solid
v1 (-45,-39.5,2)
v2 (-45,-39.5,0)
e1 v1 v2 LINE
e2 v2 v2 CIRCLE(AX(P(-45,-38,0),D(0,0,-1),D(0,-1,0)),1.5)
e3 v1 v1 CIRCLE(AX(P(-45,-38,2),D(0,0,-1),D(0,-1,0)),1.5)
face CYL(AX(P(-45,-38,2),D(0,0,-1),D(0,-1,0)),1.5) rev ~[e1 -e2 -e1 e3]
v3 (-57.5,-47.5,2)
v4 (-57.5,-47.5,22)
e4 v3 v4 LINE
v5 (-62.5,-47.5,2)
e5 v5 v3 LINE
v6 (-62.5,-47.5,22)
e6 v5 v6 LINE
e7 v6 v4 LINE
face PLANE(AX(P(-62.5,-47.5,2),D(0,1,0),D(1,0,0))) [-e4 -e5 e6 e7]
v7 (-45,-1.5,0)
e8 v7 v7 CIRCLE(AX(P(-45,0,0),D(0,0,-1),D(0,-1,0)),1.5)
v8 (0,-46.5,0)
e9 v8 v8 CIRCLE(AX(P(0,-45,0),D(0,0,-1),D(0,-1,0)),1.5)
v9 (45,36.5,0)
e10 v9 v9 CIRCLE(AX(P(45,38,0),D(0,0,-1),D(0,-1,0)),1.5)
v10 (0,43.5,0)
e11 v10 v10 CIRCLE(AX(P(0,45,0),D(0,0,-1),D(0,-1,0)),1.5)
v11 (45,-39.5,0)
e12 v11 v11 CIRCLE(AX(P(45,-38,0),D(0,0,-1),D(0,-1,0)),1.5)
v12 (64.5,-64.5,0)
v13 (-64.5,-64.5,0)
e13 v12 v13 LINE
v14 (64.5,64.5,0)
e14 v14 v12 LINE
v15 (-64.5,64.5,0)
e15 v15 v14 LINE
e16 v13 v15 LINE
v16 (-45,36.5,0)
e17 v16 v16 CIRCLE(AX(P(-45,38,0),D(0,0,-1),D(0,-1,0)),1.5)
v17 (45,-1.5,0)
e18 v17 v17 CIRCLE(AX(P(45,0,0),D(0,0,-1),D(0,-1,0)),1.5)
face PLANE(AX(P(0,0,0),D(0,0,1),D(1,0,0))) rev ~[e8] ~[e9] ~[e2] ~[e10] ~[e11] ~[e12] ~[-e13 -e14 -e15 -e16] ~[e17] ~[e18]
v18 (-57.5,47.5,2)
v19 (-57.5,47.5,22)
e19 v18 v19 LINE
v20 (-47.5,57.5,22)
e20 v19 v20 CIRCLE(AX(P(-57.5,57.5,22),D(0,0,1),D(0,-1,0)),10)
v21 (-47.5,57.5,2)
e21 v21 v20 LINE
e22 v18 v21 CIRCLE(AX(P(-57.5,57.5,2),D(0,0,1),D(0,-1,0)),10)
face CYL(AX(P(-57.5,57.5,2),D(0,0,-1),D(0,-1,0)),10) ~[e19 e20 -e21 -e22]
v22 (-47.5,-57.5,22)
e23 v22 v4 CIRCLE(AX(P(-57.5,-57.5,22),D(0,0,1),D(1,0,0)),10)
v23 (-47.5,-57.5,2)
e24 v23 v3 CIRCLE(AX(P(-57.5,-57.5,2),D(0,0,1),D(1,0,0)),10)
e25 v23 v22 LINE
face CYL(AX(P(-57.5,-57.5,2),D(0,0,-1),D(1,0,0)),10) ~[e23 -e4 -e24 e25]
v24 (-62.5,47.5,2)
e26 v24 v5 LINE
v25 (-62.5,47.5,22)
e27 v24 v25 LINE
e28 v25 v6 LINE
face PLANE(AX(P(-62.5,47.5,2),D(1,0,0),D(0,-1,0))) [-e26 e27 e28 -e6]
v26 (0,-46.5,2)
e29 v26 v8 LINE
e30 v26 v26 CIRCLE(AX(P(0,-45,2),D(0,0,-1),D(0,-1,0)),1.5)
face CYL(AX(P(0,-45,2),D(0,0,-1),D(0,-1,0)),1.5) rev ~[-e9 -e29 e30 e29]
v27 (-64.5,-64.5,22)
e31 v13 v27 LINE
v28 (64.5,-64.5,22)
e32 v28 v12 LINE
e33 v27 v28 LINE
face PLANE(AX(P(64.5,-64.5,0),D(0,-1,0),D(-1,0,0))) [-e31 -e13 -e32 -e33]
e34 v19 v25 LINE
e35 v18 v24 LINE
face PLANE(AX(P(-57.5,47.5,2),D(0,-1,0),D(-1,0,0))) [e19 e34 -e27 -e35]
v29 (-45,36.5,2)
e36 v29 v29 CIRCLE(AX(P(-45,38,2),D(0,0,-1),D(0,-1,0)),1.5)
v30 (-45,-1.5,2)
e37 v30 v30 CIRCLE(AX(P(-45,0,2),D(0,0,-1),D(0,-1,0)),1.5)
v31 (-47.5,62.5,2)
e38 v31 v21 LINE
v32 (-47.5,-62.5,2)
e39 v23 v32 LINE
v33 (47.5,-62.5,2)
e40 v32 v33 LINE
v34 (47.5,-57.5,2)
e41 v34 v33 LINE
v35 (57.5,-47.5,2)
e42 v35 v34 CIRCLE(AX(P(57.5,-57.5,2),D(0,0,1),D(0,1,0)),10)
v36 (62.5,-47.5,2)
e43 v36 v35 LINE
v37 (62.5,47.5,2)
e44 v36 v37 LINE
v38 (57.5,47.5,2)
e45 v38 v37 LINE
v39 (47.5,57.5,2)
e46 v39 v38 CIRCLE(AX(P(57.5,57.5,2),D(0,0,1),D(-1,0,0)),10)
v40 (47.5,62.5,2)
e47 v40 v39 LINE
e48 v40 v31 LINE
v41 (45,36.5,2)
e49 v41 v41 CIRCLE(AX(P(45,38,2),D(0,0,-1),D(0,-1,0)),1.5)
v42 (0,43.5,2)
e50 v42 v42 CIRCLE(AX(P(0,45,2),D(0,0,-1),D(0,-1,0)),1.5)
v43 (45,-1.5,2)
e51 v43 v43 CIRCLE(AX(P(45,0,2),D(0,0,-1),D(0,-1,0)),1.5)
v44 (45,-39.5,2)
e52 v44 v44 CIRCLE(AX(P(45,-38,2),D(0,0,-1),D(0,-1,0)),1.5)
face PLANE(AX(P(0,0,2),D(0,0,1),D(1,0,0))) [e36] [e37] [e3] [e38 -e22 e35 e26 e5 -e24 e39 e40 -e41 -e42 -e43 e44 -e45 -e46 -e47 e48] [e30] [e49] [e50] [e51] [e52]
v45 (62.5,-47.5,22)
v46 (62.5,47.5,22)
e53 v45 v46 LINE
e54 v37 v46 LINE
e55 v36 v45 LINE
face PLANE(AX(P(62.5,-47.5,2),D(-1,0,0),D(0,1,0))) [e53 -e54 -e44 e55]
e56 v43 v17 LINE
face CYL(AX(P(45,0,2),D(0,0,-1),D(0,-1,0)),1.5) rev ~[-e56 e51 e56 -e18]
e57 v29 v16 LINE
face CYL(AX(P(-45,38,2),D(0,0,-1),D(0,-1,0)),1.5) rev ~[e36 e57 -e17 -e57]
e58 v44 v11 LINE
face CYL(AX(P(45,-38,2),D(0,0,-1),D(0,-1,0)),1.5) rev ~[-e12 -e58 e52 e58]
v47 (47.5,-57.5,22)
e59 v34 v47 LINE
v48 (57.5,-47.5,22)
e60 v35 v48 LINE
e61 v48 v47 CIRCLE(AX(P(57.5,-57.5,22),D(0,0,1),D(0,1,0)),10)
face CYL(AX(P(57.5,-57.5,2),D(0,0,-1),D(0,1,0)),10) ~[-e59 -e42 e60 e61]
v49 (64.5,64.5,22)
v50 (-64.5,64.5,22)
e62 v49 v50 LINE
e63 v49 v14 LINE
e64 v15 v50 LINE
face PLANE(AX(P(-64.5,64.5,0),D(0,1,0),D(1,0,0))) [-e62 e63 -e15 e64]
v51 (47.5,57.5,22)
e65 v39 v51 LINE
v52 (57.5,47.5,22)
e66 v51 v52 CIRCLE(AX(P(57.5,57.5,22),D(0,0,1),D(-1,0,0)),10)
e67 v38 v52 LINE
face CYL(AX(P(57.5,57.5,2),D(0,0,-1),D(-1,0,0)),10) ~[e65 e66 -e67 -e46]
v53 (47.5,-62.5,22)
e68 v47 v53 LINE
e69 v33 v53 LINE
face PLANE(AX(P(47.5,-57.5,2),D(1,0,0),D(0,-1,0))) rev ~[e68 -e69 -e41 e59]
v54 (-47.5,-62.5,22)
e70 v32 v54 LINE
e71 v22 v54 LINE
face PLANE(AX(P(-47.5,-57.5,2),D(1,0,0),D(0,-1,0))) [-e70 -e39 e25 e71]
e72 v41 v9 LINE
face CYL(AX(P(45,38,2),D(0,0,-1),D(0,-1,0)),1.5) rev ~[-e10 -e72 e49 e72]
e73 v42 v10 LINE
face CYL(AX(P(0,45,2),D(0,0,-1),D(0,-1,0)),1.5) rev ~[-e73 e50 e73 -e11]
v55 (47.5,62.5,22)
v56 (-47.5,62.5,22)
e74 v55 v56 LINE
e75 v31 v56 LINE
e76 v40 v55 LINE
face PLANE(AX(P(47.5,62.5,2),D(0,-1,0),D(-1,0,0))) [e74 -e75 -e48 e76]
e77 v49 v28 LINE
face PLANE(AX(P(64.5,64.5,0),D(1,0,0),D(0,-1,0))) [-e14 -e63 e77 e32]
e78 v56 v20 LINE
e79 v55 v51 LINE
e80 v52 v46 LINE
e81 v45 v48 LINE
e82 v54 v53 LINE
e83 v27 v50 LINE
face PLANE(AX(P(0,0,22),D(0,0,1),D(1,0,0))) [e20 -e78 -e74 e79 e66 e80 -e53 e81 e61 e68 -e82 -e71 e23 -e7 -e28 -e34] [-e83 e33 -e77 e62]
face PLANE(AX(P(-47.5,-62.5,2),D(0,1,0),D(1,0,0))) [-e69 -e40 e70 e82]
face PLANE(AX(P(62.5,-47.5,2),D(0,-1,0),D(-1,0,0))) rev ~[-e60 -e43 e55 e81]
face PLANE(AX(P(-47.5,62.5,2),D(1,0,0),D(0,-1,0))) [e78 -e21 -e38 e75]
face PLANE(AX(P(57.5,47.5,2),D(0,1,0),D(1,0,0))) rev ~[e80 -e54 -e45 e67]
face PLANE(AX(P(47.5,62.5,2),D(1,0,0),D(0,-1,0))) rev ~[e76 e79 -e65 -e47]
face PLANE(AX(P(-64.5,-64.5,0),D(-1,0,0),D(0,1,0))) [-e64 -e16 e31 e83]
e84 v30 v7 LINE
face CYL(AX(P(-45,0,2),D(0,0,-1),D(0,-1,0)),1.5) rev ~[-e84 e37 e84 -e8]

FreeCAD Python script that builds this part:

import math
import FreeCAD as App
import Part
import Sketcher

V = App.Vector
Q = App.Units.Quantity


def add_polygon(sketch, points):
    """Adds a closed chain of lines whose ends are joined by coincident constraints."""
    first, n = sketch.GeometryCount, len(points)
    for a, b in zip(points, points[1:] + points[:1]):
        sketch.addGeometry(Part.LineSegment(App.Vector(*a, 0), App.Vector(*b, 0)), False)
    for i in range(n):
        sketch.addConstraint(Sketcher.Constraint("Coincident", first + i, 2, first + (i + 1) % n, 1))

doc = App.newDocument("Part")
body = doc.addObject("PartDesign::Body", "Body")

sketch1 = body.newObject("Sketcher::SketchObject", "Sketch")
sketch1.AttachmentSupport = (doc.getObject("XY_Plane"), [""])
sketch1.MapMode = "FlatFace"
add_polygon(sketch1, [(64.5, 64.5), (-64.5, 64.5), (-64.5, -64.5), (64.5, -64.5)])
sketch1.addConstraint([
    Sketcher.Constraint("Horizontal", 0),
    Sketcher.Constraint("Vertical", 1),
    Sketcher.Constraint("Horizontal", 2),
    Sketcher.Constraint("Vertical", 3),
    Sketcher.Constraint("Symmetric", 0, 2, 2, 2, -1, 1),
    Sketcher.Constraint("Equal", 2, 1),
    Sketcher.Constraint("DistanceX", 0, 2, 0, 1, Q("129 mm")),
])
pad1 = body.newObject("PartDesign::Pad", "Pad")
pad1.Profile = sketch1
pad1.Length = 2

sketch2 = body.newObject("Sketcher::SketchObject", "Sketch001")
sketch2.AttachmentSupport = (doc.getObject("XY_Plane"), [""])
sketch2.MapMode = "FlatFace"
sketch2.AttachmentOffset = App.Placement(V(0, 0, 2), App.Rotation())
add_polygon(sketch2, [(64.5, -64.5), (64.5, 64.5), (-64.5, 64.5), (-64.5, -64.5)])
sketch2.addGeometry(Part.LineSegment(V(62.5, 47.5, 0), V(62.5, -47.5, 0)), False)
sketch2.addGeometry(Part.LineSegment(V(62.5, -47.5, 0), V(57.5, -47.5, 0)), False)
sketch2.addGeometry(Part.ArcOfCircle(Part.Circle(V(57.5, -57.5, 0), V(0, 0, 1), 10), math.radians(90), math.radians(180)), False)
sketch2.addGeometry(Part.LineSegment(V(47.5, -57.5, 0), V(47.5, -62.5, 0)), False)
sketch2.addGeometry(Part.LineSegment(V(47.5, -62.5, 0), V(-47.5, -62.5, 0)), False)
sketch2.addGeometry(Part.LineSegment(V(-47.5, -62.5, 0), V(-47.5, -57.5, 0)), False)
sketch2.addGeometry(Part.ArcOfCircle(Part.Circle(V(-57.5, -57.5, 0), V(0, 0, 1), 10), math.radians(0), math.radians(90)), False)
sketch2.addGeometry(Part.LineSegment(V(-57.5, -47.5, 0), V(-62.5, -47.5, 0)), False)
sketch2.addGeometry(Part.LineSegment(V(-62.5, -47.5, 0), V(-62.5, 47.5, 0)), False)
sketch2.addGeometry(Part.LineSegment(V(-62.5, 47.5, 0), V(-57.5, 47.5, 0)), False)
sketch2.addGeometry(Part.ArcOfCircle(Part.Circle(V(-57.5, 57.5, 0), V(0, 0, 1), 10), math.radians(-90), math.radians(0)), False)
sketch2.addGeometry(Part.LineSegment(V(-47.5, 57.5, 0), V(-47.5, 62.5, 0)), False)
sketch2.addGeometry(Part.LineSegment(V(-47.5, 62.5, 0), V(47.5, 62.5, 0)), False)
sketch2.addGeometry(Part.LineSegment(V(47.5, 62.5, 0), V(47.5, 57.5, 0)), False)
sketch2.addGeometry(Part.ArcOfCircle(Part.Circle(V(57.5, 57.5, 0), V(0, 0, 1), 10), math.radians(180), math.radians(270)), False)
sketch2.addGeometry(Part.LineSegment(V(57.5, 47.5, 0), V(62.5, 47.5, 0)), False)
sketch2.addConstraint([
    Sketcher.Constraint("Coincident", 4, 2, 5, 1),
    Sketcher.Constraint("Tangent", 5, 2, 6, 1),
    Sketcher.Constraint("Tangent", 6, 2, 7, 1),
    Sketcher.Constraint("Coincident", 7, 2, 8, 1),
    Sketcher.Constraint("Coincident", 8, 2, 9, 1),
    Sketcher.Constraint("Tangent", 9, 2, 10, 1),
    Sketcher.Constraint("Tangent", 10, 2, 11, 1),
    Sketcher.Constraint("Coincident", 11, 2, 12, 1),
    Sketcher.Constraint("Coincident", 12, 2, 13, 1),
    Sketcher.Constraint("Tangent", 13, 2, 14, 1),
    Sketcher.Constraint("Tangent", 14, 2, 15, 1),
    Sketcher.Constraint("Coincident", 15, 2, 16, 1),
    Sketcher.Constraint("Coincident", 16, 2, 17, 1),
    Sketcher.Constraint("Tangent", 17, 2, 18, 1),
    Sketcher.Constraint("Tangent", 18, 2, 19, 1),
    Sketcher.Constraint("Coincident", 19, 2, 4, 1),
    Sketcher.Constraint("Vertical", 0),
    Sketcher.Constraint("Horizontal", 1),
    Sketcher.Constraint("Vertical", 2),
    Sketcher.Constraint("Horizontal", 3),
    Sketcher.Constraint("Vertical", 4),
    Sketcher.Constraint("Horizontal", 5),
    Sketcher.Constraint("Vertical", 7),
    Sketcher.Constraint("Horizontal", 8),
    Sketcher.Constraint("Vertical", 9),
    Sketcher.Constraint("Horizontal", 11),
    Sketcher.Constraint("Vertical", 12),
    Sketcher.Constraint("Horizontal", 13),
    Sketcher.Constraint("Vertical", 15),
    Sketcher.Constraint("Horizontal", 16),
    Sketcher.Constraint("Vertical", 17),
    Sketcher.Constraint("Horizontal", 19),
    Sketcher.Constraint("Equal", 6, 10),
    Sketcher.Constraint("Equal", 10, 14),
    Sketcher.Constraint("Equal", 14, 18),
    Sketcher.Constraint("Symmetric", 6, 3, 14, 3, -1, 1),
    Sketcher.Constraint("Symmetric", 10, 3, 18, 3, -1, 1),
    Sketcher.Constraint("Symmetric", 0, 2, 2, 2, -1, 1),
    Sketcher.Constraint("Symmetric", 6, 3, 10, 3, -2),
    Sketcher.Constraint("Equal", 5, 11),
    Sketcher.Constraint("Equal", 3, 0),
    Sketcher.Constraint("Equal", 16, 4),
    Sketcher.Constraint("Equal", 19, 7),
    Sketcher.Constraint("Equal", 9, 15),
    Sketcher.Constraint("Radius", 6, Q("10 mm")),
    Sketcher.Constraint("DistanceX", 4, 2, 3, 2, Q("2 mm")),
    Sketcher.Constraint("DistanceY", 3, 2, 4, 2, Q("17 mm")),
    Sketcher.Constraint("DistanceX", 1, 2, 1, 1, Q("129 mm")),
])
pad2 = body.newObject("PartDesign::Pad", "Pad001")
pad2.Profile = sketch2
pad2.Length = 20

sketch3 = body.newObject("Sketcher::SketchObject", "Sketch002")
sketch3.AttachmentSupport = (doc.getObject("XY_Plane"), [""])
sketch3.MapMode = "FlatFace"
sketch3.AttachmentOffset = App.Placement(V(0, 0, 2), App.Rotation())
sketch3.addGeometry([
    Part.Circle(V(-45, 38, 0), V(0, 0, 1), 1.5),
    Part.Circle(V(45, 38, 0), V(0, 0, 1), 1.5),
    Part.Circle(V(45, 0, 0), V(0, 0, 1), 1.5),
    Part.Circle(V(45, -38, 0), V(0, 0, 1), 1.5),
    Part.Circle(V(-45, -38, 0), V(0, 0, 1), 1.5),
    Part.Circle(V(-45, 0, 0), V(0, 0, 1), 1.5),
    Part.Circle(V(0, 45, 0), V(0, 0, 1), 1.5),
    Part.Circle(V(0, -45, 0), V(0, 0, 1), 1.5),
], False)
sketch3.addConstraint([
    Sketcher.Constraint("Equal", 0, 1),
    Sketcher.Constraint("Equal", 1, 2),
    Sketcher.Constraint("Equal", 2, 3),
    Sketcher.Constraint("Equal", 3, 4),
    Sketcher.Constraint("Equal", 4, 5),
    Sketcher.Constraint("Equal", 5, 6),
    Sketcher.Constraint("Equal", 6, 7),
    Sketcher.Constraint("Symmetric", 0, 3, 3, 3, -1, 1),
    Sketcher.Constraint("Symmetric", 1, 3, 4, 3, -1, 1),
    Sketcher.Constraint("Symmetric", 2, 3, 5, 3, -1, 1),
    Sketcher.Constraint("Symmetric", 6, 3, 7, 3, -1, 1),
    Sketcher.Constraint("Symmetric", 0, 3, 1, 3, -2),
    Sketcher.Constraint("PointOnObject", 2, 3, -1),
    Sketcher.Constraint("PointOnObject", 6, 3, -2),
    Sketcher.Constraint("Vertical", 1, 3, 2, 3),
    Sketcher.Constraint("Diameter", 0, Q("3 mm")),
    Sketcher.Constraint("DistanceX", 0, 3, -1, 1, Q("45 mm")),
    Sketcher.Constraint("DistanceY", -1, 1, 0, 3, Q("38 mm")),
    Sketcher.Constraint("DistanceY", -1, 1, 6, 3, Q("45 mm")),
])
doc.recompute()
hole = body.newObject("PartDesign::Hole", "Hole")
hole.Profile = sketch3
hole.ThreadType = "None"
hole.Diameter = 3
hole.DepthType = "ThroughAll"

doc.recompute()
